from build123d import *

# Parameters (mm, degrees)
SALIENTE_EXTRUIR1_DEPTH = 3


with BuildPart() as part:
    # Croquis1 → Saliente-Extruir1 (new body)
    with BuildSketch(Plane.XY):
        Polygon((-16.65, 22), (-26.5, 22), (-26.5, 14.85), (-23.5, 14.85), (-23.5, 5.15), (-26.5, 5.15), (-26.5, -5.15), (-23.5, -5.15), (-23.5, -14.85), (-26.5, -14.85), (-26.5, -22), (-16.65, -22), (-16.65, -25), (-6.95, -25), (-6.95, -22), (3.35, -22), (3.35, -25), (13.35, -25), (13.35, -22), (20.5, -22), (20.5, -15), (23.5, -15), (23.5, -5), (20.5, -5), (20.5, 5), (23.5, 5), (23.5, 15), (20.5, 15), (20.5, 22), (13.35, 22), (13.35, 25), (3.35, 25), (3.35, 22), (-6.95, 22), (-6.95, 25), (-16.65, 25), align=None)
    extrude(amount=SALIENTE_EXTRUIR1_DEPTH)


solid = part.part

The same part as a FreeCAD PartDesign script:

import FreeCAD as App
import Part
import Sketcher

V = App.Vector


def add_polygon(sketch, points):
    """Adds a closed chain of lines whose ends are joined by coincident constraints."""
    first, n = sketch.GeometryCount, len(points)
    for a, b in zip(points, points[1:] + points[:1]):
        sketch.addGeometry(Part.LineSegment(App.Vector(*a, 0), App.Vector(*b, 0)), False)
    for i in range(n):
        sketch.addConstraint(Sketcher.Constraint("Coincident", first + i, 2, first + (i + 1) % n, 1))

doc = App.newDocument("Part")
params = doc.addObject("Spreadsheet::Sheet", "Params")
for row, (alias, value) in enumerate([
    ("sketch1_width", "3 mm"),
    ("sketch1_width2", "10 mm"),
    ("sketch1_height", "7 mm"),
    ("sketch1_width3", "9.7 mm"),
    ("sketch1_width4", "10.3 mm"),
    ("pad1_length", "3 mm"),
], start=1):
    params.set(f"A{row}", alias)
    params.set(f"B{row}", "=" + value)
    params.setAlias(f"B{row}", alias)

body = doc.addObject("PartDesign::Body", "Body")

# Sketch on XY plane
sketch1 = body.newObject("Sketcher::SketchObject", "Sketch")
sketch1.AttachmentSupport = (doc.getObject("XY_Plane"), [""])
sketch1.MapMode = "FlatFace"
add_polygon(sketch1, [(-16.65, 22), (-26.5, 22), (-26.5, 14.85), (-23.5, 14.85), (-23.5, 5.15), (-26.5, 5.15), (-26.5, -5.15), (-23.5, -5.15), (-23.5, -14.85), (-26.5, -14.85), (-26.5, -22), (-16.65, -22), (-16.65, -25), (-6.95, -25), (-6.95, -22), (3.35, -22), (3.35, -25), (13.35, -25), (13.35, -22), (20.5, -22), (20.5, -15), (23.5, -15), (23.5, -5), (20.5, -5), (20.5, 5), (23.5, 5), (23.5, 15), (20.5, 15), (20.5, 22), (13.35, 22), (13.35, 25), (3.35, 25), (3.35, 22), (-6.95, 22), (-6.95, 25), (-16.65, 25)])  # lines 0-35
sketch1.addConstraint([
    Sketcher.Constraint("Horizontal", 0),
    Sketcher.Constraint("Vertical", 1),
    Sketcher.Constraint("Horizontal", 2),
    Sketcher.Constraint("Vertical", 3),
    Sketcher.Constraint("Horizontal", 4),
    Sketcher.Constraint("Vertical", 5),
    Sketcher.Constraint("Horizontal", 6),
    Sketcher.Constraint("Vertical", 7),
    Sketcher.Constraint("Horizontal", 8),
    Sketcher.Constraint("Vertical", 9),
    Sketcher.Constraint("Horizontal", 10),
    Sketcher.Constraint("Vertical", 11),
    Sketcher.Constraint("Horizontal", 12),
    Sketcher.Constraint("Vertical", 13),
    Sketcher.Constraint("Horizontal", 14),
    Sketcher.Constraint("Vertical", 15),
    Sketcher.Constraint("Horizontal", 16),
    Sketcher.Constraint("Vertical", 17),
    Sketcher.Constraint("Horizontal", 18),
    Sketcher.Constraint("Vertical", 19),
    Sketcher.Constraint("Horizontal", 20),
    Sketcher.Constraint("Vertical", 21),
    Sketcher.Constraint("Horizontal", 22),
    Sketcher.Constraint("Vertical", 23),
    Sketcher.Constraint("Horizontal", 24),
    Sketcher.Constraint("Vertical", 25),
    Sketcher.Constraint("Horizontal", 26),
    Sketcher.Constraint("Vertical", 27),
    Sketcher.Constraint("Horizontal", 28),
    Sketcher.Constraint("Vertical", 29),
    Sketcher.Constraint("Horizontal", 30),
    Sketcher.Constraint("Vertical", 31),
    Sketcher.Constraint("Horizontal", 32),
    Sketcher.Constraint("Vertical", 33),
    Sketcher.Constraint("Horizontal", 34),
    Sketcher.Constraint("Vertical", 35),
    Sketcher.Constraint("Symmetric", 3, 2, 6, 2, -1),
    Sketcher.Constraint("Symmetric", 1, 2, 8, 2, -1),
    Sketcher.Constraint("Symmetric", 21, 2, 24, 2, -1),
    Sketcher.Constraint("Symmetric", 19, 2, 26, 2, -1),
    Sketcher.Constraint("Symmetric", 17, 2, 28, 2, -1),
    Sketcher.Constraint("Symmetric", 15, 2, 30, 2, -1),
    Sketcher.Constraint("Symmetric", 13, 2, 32, 2, -1),
    Sketcher.Constraint("Symmetric", 11, 2, 34, 2, -1),
    Sketcher.Constraint("Horizontal", 10, 2, 13, 2),
    Sketcher.Constraint("Horizontal", 12, 2, 15, 2),
    Sketcher.Constraint("Horizontal", 14, 2, 17, 2),
    Sketcher.Constraint("Horizontal", 0, 2, 27, 2),
    Sketcher.Constraint("Vertical", 1, 2, 4, 2),
    Sketcher.Constraint("Vertical", 19, 2, 22, 2),
    Sketcher.Constraint("Equal", 8, 20),
    Sketcher.Constraint("Equal", 28, 1),
    Sketcher.Constraint("Equal", 34, 3),
    Sketcher.Constraint("Equal", 32, 5),
    Sketcher.Constraint("Equal", 26, 11),
    Sketcher.Constraint("Equal", 30, 21),
    Sketcher.Constraint("Equal", 21, 23),
    Sketcher.Constraint("DistanceX", 2, 1, 2, 2, 3.0),
    Sketcher.Constraint("DistanceX", 16, 1, 16, 2, 10.0),
    Sketcher.Constraint("DistanceY", 19, 1, 19, 2, 7.0),
    Sketcher.Constraint("DistanceX", 12, 1, 12, 2, 9.7),
    Sketcher.Constraint("DistanceX", 14, 1, 14, 2, 10.3),
    Sketcher.Constraint("DistanceX", 0, 2, 0, 1, 9.85),
    Sketcher.Constraint("DistanceX", 0, 2, -1, 1, 26.5),
])
sketch1.setExpression("Constraints[93]", "Params.sketch1_width")
sketch1.setExpression("Constraints[94]", "Params.sketch1_width2")
sketch1.setExpression("Constraints[95]", "Params.sketch1_height")
sketch1.setExpression("Constraints[96]", "Params.sketch1_width3")
sketch1.setExpression("Constraints[97]", "Params.sketch1_width4")
pad1 = body.newObject("PartDesign::Pad", "Pad")
pad1.Profile = sketch1
pad1.setExpression("Length", "Params.pad1_length")

doc.recompute()
